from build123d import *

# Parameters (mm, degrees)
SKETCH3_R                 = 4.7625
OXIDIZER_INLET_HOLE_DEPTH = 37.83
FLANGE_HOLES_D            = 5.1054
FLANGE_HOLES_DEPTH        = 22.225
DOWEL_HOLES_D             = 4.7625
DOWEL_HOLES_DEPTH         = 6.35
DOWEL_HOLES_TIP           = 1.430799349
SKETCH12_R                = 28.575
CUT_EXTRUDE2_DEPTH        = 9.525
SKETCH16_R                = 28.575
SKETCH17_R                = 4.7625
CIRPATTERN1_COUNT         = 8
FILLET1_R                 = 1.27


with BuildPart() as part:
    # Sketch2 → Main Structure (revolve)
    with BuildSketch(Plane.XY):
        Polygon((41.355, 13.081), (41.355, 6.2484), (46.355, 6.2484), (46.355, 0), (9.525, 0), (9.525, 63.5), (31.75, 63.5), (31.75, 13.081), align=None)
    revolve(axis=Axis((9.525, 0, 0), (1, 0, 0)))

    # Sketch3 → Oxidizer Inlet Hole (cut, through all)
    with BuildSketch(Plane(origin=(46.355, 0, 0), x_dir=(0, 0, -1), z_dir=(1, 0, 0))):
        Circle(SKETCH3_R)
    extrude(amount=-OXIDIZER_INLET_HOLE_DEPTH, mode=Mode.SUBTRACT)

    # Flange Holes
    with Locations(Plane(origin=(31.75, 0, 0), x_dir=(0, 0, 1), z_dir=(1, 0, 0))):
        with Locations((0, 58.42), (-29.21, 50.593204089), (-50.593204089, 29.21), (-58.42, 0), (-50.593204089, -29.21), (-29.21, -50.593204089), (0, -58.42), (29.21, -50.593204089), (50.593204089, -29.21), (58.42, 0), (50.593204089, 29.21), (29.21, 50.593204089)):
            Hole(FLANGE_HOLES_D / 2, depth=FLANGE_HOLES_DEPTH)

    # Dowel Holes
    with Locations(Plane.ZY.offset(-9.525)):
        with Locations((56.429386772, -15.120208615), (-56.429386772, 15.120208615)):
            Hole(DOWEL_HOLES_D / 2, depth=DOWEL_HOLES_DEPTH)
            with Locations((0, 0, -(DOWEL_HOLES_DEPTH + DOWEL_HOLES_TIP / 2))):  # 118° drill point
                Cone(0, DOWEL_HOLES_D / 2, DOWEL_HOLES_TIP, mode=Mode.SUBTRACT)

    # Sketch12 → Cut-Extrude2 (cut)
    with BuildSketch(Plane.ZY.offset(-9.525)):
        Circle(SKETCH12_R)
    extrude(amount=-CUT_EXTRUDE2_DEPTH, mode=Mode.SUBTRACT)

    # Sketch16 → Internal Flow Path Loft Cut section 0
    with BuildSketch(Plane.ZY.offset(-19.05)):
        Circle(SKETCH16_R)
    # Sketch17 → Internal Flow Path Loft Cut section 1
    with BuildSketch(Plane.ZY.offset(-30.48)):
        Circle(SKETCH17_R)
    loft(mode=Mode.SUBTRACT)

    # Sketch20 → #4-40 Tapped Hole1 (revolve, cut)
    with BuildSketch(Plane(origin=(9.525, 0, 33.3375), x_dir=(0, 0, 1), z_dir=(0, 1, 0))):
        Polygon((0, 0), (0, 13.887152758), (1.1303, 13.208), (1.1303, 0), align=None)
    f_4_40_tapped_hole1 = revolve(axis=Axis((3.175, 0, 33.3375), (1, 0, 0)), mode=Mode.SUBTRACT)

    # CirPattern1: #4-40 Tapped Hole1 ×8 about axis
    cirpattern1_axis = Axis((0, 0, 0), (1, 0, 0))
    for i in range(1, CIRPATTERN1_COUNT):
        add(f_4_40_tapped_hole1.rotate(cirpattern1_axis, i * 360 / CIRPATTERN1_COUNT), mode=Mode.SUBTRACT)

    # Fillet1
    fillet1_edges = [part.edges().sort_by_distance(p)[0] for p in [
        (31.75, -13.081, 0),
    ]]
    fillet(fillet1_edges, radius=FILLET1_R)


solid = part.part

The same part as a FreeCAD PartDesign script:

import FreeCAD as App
import Part
import Sketcher
Q = App.Units.Quantity


def edges_at(feature, points):
    """Names of the edges that pass closest to the given points."""
    edges = feature.Shape.Edges
    near = lambda p: min(range(len(edges)), key=lambda i: edges[i].distToShape(Part.Vertex(*p))[0])
    return sorted({f"Edge{near(p) + 1}" for p in points})

doc = App.newDocument("Part")
params = doc.addObject("Spreadsheet::Sheet", "Params")
for row, (alias, value) in enumerate([
    ("sketch1_height", "2.5 in"),
    ("sketch1_width", "1.45 in"),
    ("sketch1_width2", "0.875 in"),
    ("sketch1_height2", "0.269 in"),
    ("sketch1_height3", "1.985 in"),
    ("revolution_angle", "360 deg"),
    ("sketch2_diameter", "0.375 in"),
    ("sketch3_diameter", "0.201 in"),
    ("hole_diameter", "0.201 in"),
    ("hole_depth", "0.875 in"),
    ("sketch4_diameter", "0.1875 in"),
    ("hole2_diameter", "0.1875 in"),
    ("hole2_depth", "0.25 in"),
    ("sketch5_diameter", "2.25 in"),
    ("pocket2_length", "0.375 in"),
    ("sketch6_diameter", "2.25 in"),
    ("sketch7_diameter", "0.375 in"),
    ("sketch8_width", "0.52 in"),
    ("groove_angle", "360 deg"),
    ("fillet_radius", "0.05 in"),
], start=1):
    params.set(f"A{row}", alias)
    params.set(f"B{row}", "=" + value)
    params.setAlias(f"B{row}", alias)

body = doc.addObject("PartDesign::Body", "Body")

# Sketch on XY plane
sketch1 = doc.addObject("Sketcher::SketchObject", "Sketch")
body.addObject(sketch1)
sketch1.AttachmentSupport = (doc.XY_Plane, [""])
sketch1.MapMode = "FlatFace"
sketch1.addGeometry([
    Part.LineSegment(App.Vector(41.355, 6.2484, 0), App.Vector(41.355, 13.081, 0)),  # 0
    Part.LineSegment(App.Vector(41.355, 13.081, 0), App.Vector(31.75, 13.081, 0)),  # 1
    Part.LineSegment(App.Vector(31.75, 13.081, 0), App.Vector(31.75, 63.5, 0)),  # 2
    Part.LineSegment(App.Vector(31.75, 63.5, 0), App.Vector(9.525, 63.5, 0)),  # 3
    Part.LineSegment(App.Vector(9.525, 63.5, 0), App.Vector(9.525, 0, 0)),  # 4
    Part.LineSegment(App.Vector(9.525, 0, 0), App.Vector(46.355, 0, 0)),  # 5
    Part.LineSegment(App.Vector(46.355, 0, 0), App.Vector(46.355, 6.2484, 0)),  # 6
    Part.LineSegment(App.Vector(46.355, 6.2484, 0), App.Vector(41.355, 6.2484, 0)),  # 7
], False)
sketch1.addConstraint([
    Sketcher.Constraint("Coincident", 0, 2, 1, 1),
    Sketcher.Constraint("Coincident", 1, 2, 2, 1),
    Sketcher.Constraint("Coincident", 2, 2, 3, 1),
    Sketcher.Constraint("Coincident", 3, 2, 4, 1),
    Sketcher.Constraint("Coincident", 4, 2, 5, 1),
    Sketcher.Constraint("Coincident", 5, 2, 6, 1),
    Sketcher.Constraint("Coincident", 6, 2, 7, 1),
    Sketcher.Constraint("Coincident", 7, 2, 0, 1),
    Sketcher.Constraint("Vertical", 0),
    Sketcher.Constraint("Horizontal", 1),
    Sketcher.Constraint("Vertical", 2),
    Sketcher.Constraint("Horizontal", 3),
    Sketcher.Constraint("Vertical", 4),
    Sketcher.Constraint("Horizontal", 5),
    Sketcher.Constraint("Vertical", 6),
    Sketcher.Constraint("Horizontal", 7),
    Sketcher.Constraint("PointOnObject", 4, 2, -1),
    Sketcher.Constraint("DistanceY", 4, 2, 4, 1, Q("2.5 in")),
    Sketcher.Constraint("DistanceX", 5, 1, 5, 2, Q("1.45 in")),
    Sketcher.Constraint("DistanceX", 3, 2, 3, 1, Q("0.875 in")),
    Sketcher.Constraint("DistanceY", 0, 1, 0, 2, Q("0.269 in")),
    Sketcher.Constraint("DistanceY", 2, 1, 2, 2, Q("1.985 in")),
    Sketcher.Constraint("DistanceX", -1, 1, 1, 2, Q("1.25 in")),
    Sketcher.Constraint("DistanceX", 1, 2, 1, 1, Q("9.605 mm")),
])
sketch1.setExpression("Constraints[17]", "Params.sketch1_height")
sketch1.setExpression("Constraints[18]", "Params.sketch1_width")
sketch1.setExpression("Constraints[19]", "Params.sketch1_width2")
sketch1.setExpression("Constraints[20]", "Params.sketch1_height2")
sketch1.setExpression("Constraints[21]", "Params.sketch1_height3")
revolution = doc.addObject("PartDesign::Revolution", "Revolution")
body.addObject(revolution)
revolution.Profile = sketch1
revolution.ReferenceAxis = (sketch1, ["H_Axis"])
revolution.setExpression("Angle", "Params.revolution_angle")

# Sketch on YZ plane
sketch2 = doc.addObject("Sketcher::SketchObject", "Sketch001")
body.addObject(sketch2)
sketch2.AttachmentSupport = (doc.YZ_Plane, [""])
sketch2.MapMode = "FlatFace"
sketch2.AttachmentOffset = App.Placement(App.Vector(0, 0, 1.825 * 25.4), App.Rotation())
sketch2.addGeometry(Part.Circle(App.Vector(0, 0, 0), App.Vector(0, 0, 1), 4.7625), False)
sketch2.addConstraint([
    Sketcher.Constraint("Coincident", 0, 3, -1, 1),
    Sketcher.Constraint("Diameter", 0, Q("0.375 in")),
])
sketch2.setExpression("Constraints[1]", "Params.sketch2_diameter")
pocket1 = doc.addObject("PartDesign::Pocket", "Pocket")
body.addObject(pocket1)
pocket1.Profile = sketch2
pocket1.Type = "ThroughAll"

# Sketch on YZ plane
sketch3 = doc.addObject("Sketcher::SketchObject", "Sketch002")
body.addObject(sketch3)
sketch3.AttachmentSupport = (doc.YZ_Plane, [""])
sketch3.MapMode = "FlatFace"
sketch3.AttachmentOffset = App.Placement(App.Vector(0, 0, 1.25 * 25.4), App.Rotation())
sketch3.addGeometry([
    Part.Circle(App.Vector(-58.42, 0, 0), App.Vector(0, 0, 1), 2.5527),  # 0
    Part.Circle(App.Vector(-50.593204, -29.21, 0), App.Vector(0, 0, 1), 2.5527),  # 1
    Part.Circle(App.Vector(-29.21, -50.593204, 0), App.Vector(0, 0, 1), 2.5527),  # 2
    Part.Circle(App.Vector(0, -58.42, 0), App.Vector(0, 0, 1), 2.5527),  # 3
    Part.Circle(App.Vector(29.21, -50.593204, 0), App.Vector(0, 0, 1), 2.5527),  # 4
    Part.Circle(App.Vector(50.593204, -29.21, 0), App.Vector(0, 0, 1), 2.5527),  # 5
    Part.Circle(App.Vector(58.42, 0, 0), App.Vector(0, 0, 1), 2.5527),  # 6
    Part.Circle(App.Vector(50.593204, 29.21, 0), App.Vector(0, 0, 1), 2.5527),  # 7
    Part.Circle(App.Vector(29.21, 50.593204, 0), App.Vector(0, 0, 1), 2.5527),  # 8
    Part.Circle(App.Vector(0, 58.42, 0), App.Vector(0, 0, 1), 2.5527),  # 9
    Part.Circle(App.Vector(-29.21, 50.593204, 0), App.Vector(0, 0, 1), 2.5527),  # 10
    Part.Circle(App.Vector(-50.593204, 29.21, 0), App.Vector(0, 0, 1), 2.5527),  # 11
], False)
sketch3.addConstraint([
    Sketcher.Constraint("Equal", 0, 1),
    Sketcher.Constraint("Equal", 1, 2),
    Sketcher.Constraint("Equal", 2, 3),
    Sketcher.Constraint("Equal", 3, 4),
    Sketcher.Constraint("Equal", 4, 5),
    Sketcher.Constraint("Equal", 5, 6),
    Sketcher.Constraint("Equal", 6, 7),
    Sketcher.Constraint("Equal", 7, 8),
    Sketcher.Constraint("Equal", 8, 9),
    Sketcher.Constraint("Equal", 9, 10),
    Sketcher.Constraint("Equal", 10, 11),
    Sketcher.Constraint("Symmetric", 0, 3, 6, 3, -1, 1),
    Sketcher.Constraint("Symmetric", 1, 3, 7, 3, -1, 1),
    Sketcher.Constraint("Symmetric", 2, 3, 8, 3, -1, 1),
    Sketcher.Constraint("Symmetric", 3, 3, 9, 3, -1, 1),
    Sketcher.Constraint("Symmetric", 4, 3, 10, 3, -1, 1),
    Sketcher.Constraint("Symmetric", 5, 3, 11, 3, -1, 1),
    Sketcher.Constraint("Symmetric", 2, 3, 4, 3, -2),
    Sketcher.Constraint("Symmetric", 1, 3, 5, 3, -2),
    Sketcher.Constraint("PointOnObject", 0, 3, -1),
    Sketcher.Constraint("PointOnObject", 3, 3, -2),
    Sketcher.Constraint("Diameter", 0, Q("0.201 in")),
    Sketcher.Constraint("DistanceX", 0, 3, -1, 1, Q("2.3 in")),
    Sketcher.Constraint("DistanceY", 3, 3, -1, 1, Q("2.3 in")),
    Sketcher.Constraint("DistanceX", 2, 3, 4, 3, Q("2.3 in")),
    Sketcher.Constraint("DistanceY", 5, 3, 7, 3, Q("2.3 in")),
    Sketcher.Constraint("DistanceX", 1, 3, 5, 3, Q("101.186408 mm")),
    Sketcher.Constraint("DistanceY", 4, 3, 8, 3, Q("101.186408 mm")),
])
sketch3.setExpression("Constraints[21]", "Params.sketch3_diameter")
doc.recompute()
hole = doc.addObject("PartDesign::Hole", "Hole")
body.addObject(hole)
hole.Profile = sketch3
hole.ThreadType = "None"
hole.setExpression("Diameter", "Params.hole_diameter")
hole.DepthType = "Dimension"
hole.setExpression("Depth", "Params.hole_depth")
hole.DrillPoint = "Flat"

# Sketch on YZ plane
sketch4 = doc.addObject("Sketcher::SketchObject", "Sketch003")
body.addObject(sketch4)
sketch4.AttachmentSupport = (doc.YZ_Plane, [""])
sketch4.MapMode = "FlatFace"
sketch4.AttachmentOffset = App.Placement(App.Vector(0, 0, 0.375 * 25.4), App.Rotation())
sketch4.addGeometry([
    Part.Circle(App.Vector(-15.120209, 56.429387, 0), App.Vector(0, 0, 1), 2.38125),
    Part.Circle(App.Vector(15.120209, -56.429387, 0), App.Vector(0, 0, 1), 2.38125),
], False)
sketch4.addConstraint([
    Sketcher.Constraint("Equal", 0, 1),
    Sketcher.Constraint("Symmetric", 0, 3, 1, 3, -1, 1),
    Sketcher.Constraint("Diameter", 0, Q("0.1875 in")),
    Sketcher.Constraint("DistanceX", 0, 3, -1, 1, Q("15.120209 mm")),
    Sketcher.Constraint("DistanceY", -1, 1, 0, 3, Q("56.429387 mm")),
])
sketch4.setExpression("Constraints[2]", "Params.sketch4_diameter")
doc.recompute()
hole2 = doc.addObject("PartDesign::Hole", "Hole001")
body.addObject(hole2)
hole2.Profile = sketch4
hole2.ThreadType = "None"
hole2.setExpression("Diameter", "Params.hole2_diameter")
hole2.DepthType = "Dimension"
hole2.setExpression("Depth", "Params.hole2_depth")
hole2.DrillPoint = "Angled"
hole2.DrillPointAngle = 118
hole2.Reversed = True

# Sketch on YZ plane
sketch5 = doc.addObject("Sketcher::SketchObject", "Sketch004")
body.addObject(sketch5)
sketch5.AttachmentSupport = (doc.YZ_Plane, [""])
sketch5.MapMode = "FlatFace"
sketch5.AttachmentOffset = App.Placement(App.Vector(0, 0, 0.375 * 25.4), App.Rotation())
sketch5.addGeometry(Part.Circle(App.Vector(0, 0, 0), App.Vector(0, 0, 1), 28.575), False)
sketch5.addConstraint([
    Sketcher.Constraint("Coincident", 0, 3, -1, 1),
    Sketcher.Constraint("Diameter", 0, Q("2.25 in")),
])
sketch5.setExpression("Constraints[1]", "Params.sketch5_diameter")
pocket2 = doc.addObject("PartDesign::Pocket", "Pocket001")
body.addObject(pocket2)
pocket2.Profile = sketch5
pocket2.setExpression("Length", "Params.pocket2_length")
pocket2.Reversed = True

# Sketch on YZ plane
sketch6 = doc.addObject("Sketcher::SketchObject", "Sketch005")
body.addObject(sketch6)
sketch6.AttachmentSupport = (doc.YZ_Plane, [""])
sketch6.MapMode = "FlatFace"
sketch6.AttachmentOffset = App.Placement(App.Vector(0, 0, 0.75 * 25.4), App.Rotation())
sketch6.addGeometry(Part.Circle(App.Vector(0, 0, 0), App.Vector(0, 0, 1), 28.575), False)
sketch6.addConstraint([
    Sketcher.Constraint("Coincident", 0, 3, -1, 1),
    Sketcher.Constraint("Diameter", 0, Q("2.25 in")),
])
sketch6.setExpression("Constraints[1]", "Params.sketch6_diameter")

# Sketch on YZ plane
sketch7 = doc.addObject("Sketcher::SketchObject", "Sketch006")
body.addObject(sketch7)
sketch7.AttachmentSupport = (doc.YZ_Plane, [""])
sketch7.MapMode = "FlatFace"
sketch7.AttachmentOffset = App.Placement(App.Vector(0, 0, 1.2 * 25.4), App.Rotation())
sketch7.addGeometry(Part.Circle(App.Vector(0, 0, 0), App.Vector(0, 0, 1), 4.7625), False)
sketch7.addConstraint([
    Sketcher.Constraint("Coincident", 0, 3, -1, 1),
    Sketcher.Constraint("Diameter", 0, Q("0.375 in")),
])
sketch7.setExpression("Constraints[1]", "Params.sketch7_diameter")

subtractiveloft = doc.addObject("PartDesign::SubtractiveLoft", "SubtractiveLoft")
body.addObject(subtractiveloft)
subtractiveloft.Profile = sketch6
subtractiveloft.Sections = [sketch7]

# Sketch on XZ plane
sketch8 = doc.addObject("Sketcher::SketchObject", "Sketch007")
body.addObject(sketch8)
sketch8.AttachmentSupport = (doc.XZ_Plane, [""])
sketch8.MapMode = "FlatFace"
sketch8.addGeometry([
    Part.LineSegment(App.Vector(23.412153, 33.3375, 0), App.Vector(9.525, 33.3375, 0)),
    Part.LineSegment(App.Vector(9.525, 33.3375, 0), App.Vector(9.525, 34.4678, 0)),
    Part.LineSegment(App.Vector(9.525, 34.4678, 0), App.Vector(22.733, 34.4678, 0)),
    Part.LineSegment(App.Vector(22.733, 34.4678, 0), App.Vector(23.412153, 33.3375, 0)),
], False)
sketch8.addGeometry(Part.LineSegment(App.Vector(9.525, 33.3375, 0), App.Vector(23.412153, 33.3375, 0)), True)  # axis
sketch8.addConstraint([
    Sketcher.Constraint("Coincident", 0, 2, 1, 1),
    Sketcher.Constraint("Coincident", 1, 2, 2, 1),
    Sketcher.Constraint("Coincident", 2, 2, 3, 1),
    Sketcher.Constraint("Coincident", 3, 2, 0, 1),
    Sketcher.Constraint("Horizontal", 0),
    Sketcher.Constraint("Vertical", 1),
    Sketcher.Constraint("Horizontal", 2),
    Sketcher.Constraint("Horizontal", 4),
    Sketcher.Constraint("Coincident", 4, 1, 0, 2),
    Sketcher.Constraint("Equal", 0, 4),
    Sketcher.Constraint("Angle", 3, Q("-59 deg")),
    Sketcher.Constraint("DistanceX", 2, 1, 2, 2, Q("0.52 in")),
    Sketcher.Constraint("DistanceY", 1, 1, 1, 2, Q("0.0445 in")),
    Sketcher.Constraint("DistanceX", -1, 1, 0, 2, Q("0.375 in")),
    Sketcher.Constraint("DistanceY", -1, 1, 0, 2, Q("1.3125 in")),
])
sketch8.setExpression("Constraints[11]", "Params.sketch8_width")
groove = doc.addObject("PartDesign::Groove", "Groove")
body.addObject(groove)
groove.Profile = sketch8
groove.ReferenceAxis = (sketch8, ["Axis0"])
groove.setExpression("Angle", "Params.groove_angle")
doc.recompute()

polarpattern = doc.addObject("PartDesign::PolarPattern", "PolarPattern")
body.addObject(polarpattern)
polarpattern.Originals = [groove]
polarpattern.Axis = (doc.X_Axis, [""])
polarpattern.Angle = 360
polarpattern.Occurrences = 8
body.Tip = polarpattern
doc.recompute()

fillet = doc.addObject("PartDesign::Fillet", "Fillet")
body.addObject(fillet)
fillet.Base = (polarpattern, edges_at(polarpattern, [(31.75, -13.081, 0)]))
fillet.setExpression("Radius", "Params.fillet_radius")

doc.recompute()
